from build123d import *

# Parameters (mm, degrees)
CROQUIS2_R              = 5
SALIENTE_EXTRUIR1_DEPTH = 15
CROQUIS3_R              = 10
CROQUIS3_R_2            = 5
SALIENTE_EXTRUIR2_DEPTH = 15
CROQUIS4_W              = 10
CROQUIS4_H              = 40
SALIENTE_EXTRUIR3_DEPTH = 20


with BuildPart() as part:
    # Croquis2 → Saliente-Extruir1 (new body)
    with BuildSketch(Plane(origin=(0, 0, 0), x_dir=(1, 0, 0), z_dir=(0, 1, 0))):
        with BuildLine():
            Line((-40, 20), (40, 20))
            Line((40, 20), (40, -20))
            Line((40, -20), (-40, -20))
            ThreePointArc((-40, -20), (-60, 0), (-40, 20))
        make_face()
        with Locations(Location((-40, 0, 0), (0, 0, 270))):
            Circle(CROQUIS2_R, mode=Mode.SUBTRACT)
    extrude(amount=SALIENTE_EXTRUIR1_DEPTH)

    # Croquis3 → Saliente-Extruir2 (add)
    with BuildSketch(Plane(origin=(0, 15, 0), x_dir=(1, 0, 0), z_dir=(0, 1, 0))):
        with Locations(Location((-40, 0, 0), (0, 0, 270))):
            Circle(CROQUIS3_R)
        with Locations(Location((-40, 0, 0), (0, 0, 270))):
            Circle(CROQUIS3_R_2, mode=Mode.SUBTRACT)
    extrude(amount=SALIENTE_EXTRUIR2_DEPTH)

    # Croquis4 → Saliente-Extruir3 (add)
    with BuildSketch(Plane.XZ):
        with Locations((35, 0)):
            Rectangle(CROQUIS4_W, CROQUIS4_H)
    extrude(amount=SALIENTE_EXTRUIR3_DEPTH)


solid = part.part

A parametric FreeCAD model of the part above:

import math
import FreeCAD as App
import Part
import Sketcher
from FreeCAD import Vector

doc = App.newDocument("Part")
body = doc.addObject("PartDesign::Body", "Body")

sketch1 = doc.addObject("Sketcher::SketchObject", "Sketch")
body.addObject(sketch1)
sketch1.AttachmentSupport = (doc.XZ_Plane, [""])
sketch1.MapMode = "FlatFace"
sketch1.addGeometry([
    Part.LineSegment(Vector(40, -20, 0), Vector(-40, -20, 0)),
    Part.ArcOfCircle(Part.Circle(Vector(-40, 0, 0), Vector(0, 0, 1), 20), math.radians(90), math.radians(270)),
    Part.LineSegment(Vector(-40, 20, 0), Vector(40, 20, 0)),
    Part.LineSegment(Vector(40, 20, 0), Vector(40, -20, 0)),
    Part.Circle(Vector(-40, 0, 0), Vector(0, 0, 1), 5),
], False)
sketch1.addConstraint([
    Sketcher.Constraint("Tangent", 0, 2, 1, 2),
    Sketcher.Constraint("Tangent", 1, 1, 2, 1),
    Sketcher.Constraint("Coincident", 2, 2, 3, 1),
    Sketcher.Constraint("Coincident", 3, 2, 0, 1),
    Sketcher.Constraint("Horizontal", 0),
    Sketcher.Constraint("Horizontal", 2),
    Sketcher.Constraint("Vertical", 3),
    Sketcher.Constraint("Coincident", 4, 3, 1, 3),
    Sketcher.Constraint("Symmetric", 0, 2, 2, 2, -1, 1),
    Sketcher.Constraint("Diameter", 4, 10.0),
    Sketcher.Constraint("Radius", 1, 20.0),
    Sketcher.Constraint("DistanceX", 0, 2, 0, 1, 80.0),
])
pad1 = doc.addObject("PartDesign::Pad", "Pad")
body.addObject(pad1)
pad1.Profile = sketch1
pad1.Length = 15
pad1.Reversed = True

sketch2 = doc.addObject("Sketcher::SketchObject", "Sketch001")
body.addObject(sketch2)
sketch2.AttachmentSupport = (doc.XZ_Plane, [""])
sketch2.MapMode = "FlatFace"
sketch2.AttachmentOffset = App.Placement(Vector(0, 0, -15), App.Rotation())
sketch2.addGeometry([
    Part.Circle(Vector(-40, 0, 0), Vector(0, 0, 1), 10),
    Part.Circle(Vector(-40, 0, 0), Vector(0, 0, 1), 5),
], False)
sketch2.addConstraint([
    Sketcher.Constraint("Coincident", 1, 3, 0, 3),
    Sketcher.Constraint("PointOnObject", 0, 3, -1),
    Sketcher.Constraint("Diameter", 0, 20.0),
    Sketcher.Constraint("Diameter", 1, 10.0),
    Sketcher.Constraint("DistanceX", 0, 3, -1, 1, 40.0),
])
pad2 = doc.addObject("PartDesign::Pad", "Pad001")
body.addObject(pad2)
pad2.Profile = sketch2
pad2.Length = 15
pad2.Reversed = True

sketch3 = doc.addObject("Sketcher::SketchObject", "Sketch002")
body.addObject(sketch3)
sketch3.AttachmentSupport = (doc.XZ_Plane, [""])
sketch3.MapMode = "FlatFace"
sketch3.addGeometry([
    Part.LineSegment(Vector(30, 20, 0), Vector(30, -20, 0)),
    Part.LineSegment(Vector(30, -20, 0), Vector(40, -20, 0)),
    Part.LineSegment(Vector(40, -20, 0), Vector(40, 20, 0)),
    Part.LineSegment(Vector(40, 20, 0), Vector(30, 20, 0)),
], False)
sketch3.addConstraint([
    Sketcher.Constraint("Coincident", 0, 2, 1, 1),
    Sketcher.Constraint("Coincident", 1, 2, 2, 1),
    Sketcher.Constraint("Coincident", 2, 2, 3, 1),
    Sketcher.Constraint("Coincident", 3, 2, 0, 1),
    Sketcher.Constraint("Vertical", 0),
    Sketcher.Constraint("Horizontal", 1),
    Sketcher.Constraint("Vertical", 2),
    Sketcher.Constraint("Horizontal", 3),
    Sketcher.Constraint("DistanceX", 1, 1, 1, 2, 10.0),
    Sketcher.Constraint("DistanceY", 0, 2, 0, 1, 40.0),
    Sketcher.Constraint("DistanceX", -1, 1, 0, 2, 30.0),
    Sketcher.Constraint("DistanceY", 0, 2, -1, 1, 20.0),
])
pad3 = doc.addObject("PartDesign::Pad", "Pad002")
body.addObject(pad3)
pad3.Profile = sketch3
pad3.Length = 20

doc.recompute()
